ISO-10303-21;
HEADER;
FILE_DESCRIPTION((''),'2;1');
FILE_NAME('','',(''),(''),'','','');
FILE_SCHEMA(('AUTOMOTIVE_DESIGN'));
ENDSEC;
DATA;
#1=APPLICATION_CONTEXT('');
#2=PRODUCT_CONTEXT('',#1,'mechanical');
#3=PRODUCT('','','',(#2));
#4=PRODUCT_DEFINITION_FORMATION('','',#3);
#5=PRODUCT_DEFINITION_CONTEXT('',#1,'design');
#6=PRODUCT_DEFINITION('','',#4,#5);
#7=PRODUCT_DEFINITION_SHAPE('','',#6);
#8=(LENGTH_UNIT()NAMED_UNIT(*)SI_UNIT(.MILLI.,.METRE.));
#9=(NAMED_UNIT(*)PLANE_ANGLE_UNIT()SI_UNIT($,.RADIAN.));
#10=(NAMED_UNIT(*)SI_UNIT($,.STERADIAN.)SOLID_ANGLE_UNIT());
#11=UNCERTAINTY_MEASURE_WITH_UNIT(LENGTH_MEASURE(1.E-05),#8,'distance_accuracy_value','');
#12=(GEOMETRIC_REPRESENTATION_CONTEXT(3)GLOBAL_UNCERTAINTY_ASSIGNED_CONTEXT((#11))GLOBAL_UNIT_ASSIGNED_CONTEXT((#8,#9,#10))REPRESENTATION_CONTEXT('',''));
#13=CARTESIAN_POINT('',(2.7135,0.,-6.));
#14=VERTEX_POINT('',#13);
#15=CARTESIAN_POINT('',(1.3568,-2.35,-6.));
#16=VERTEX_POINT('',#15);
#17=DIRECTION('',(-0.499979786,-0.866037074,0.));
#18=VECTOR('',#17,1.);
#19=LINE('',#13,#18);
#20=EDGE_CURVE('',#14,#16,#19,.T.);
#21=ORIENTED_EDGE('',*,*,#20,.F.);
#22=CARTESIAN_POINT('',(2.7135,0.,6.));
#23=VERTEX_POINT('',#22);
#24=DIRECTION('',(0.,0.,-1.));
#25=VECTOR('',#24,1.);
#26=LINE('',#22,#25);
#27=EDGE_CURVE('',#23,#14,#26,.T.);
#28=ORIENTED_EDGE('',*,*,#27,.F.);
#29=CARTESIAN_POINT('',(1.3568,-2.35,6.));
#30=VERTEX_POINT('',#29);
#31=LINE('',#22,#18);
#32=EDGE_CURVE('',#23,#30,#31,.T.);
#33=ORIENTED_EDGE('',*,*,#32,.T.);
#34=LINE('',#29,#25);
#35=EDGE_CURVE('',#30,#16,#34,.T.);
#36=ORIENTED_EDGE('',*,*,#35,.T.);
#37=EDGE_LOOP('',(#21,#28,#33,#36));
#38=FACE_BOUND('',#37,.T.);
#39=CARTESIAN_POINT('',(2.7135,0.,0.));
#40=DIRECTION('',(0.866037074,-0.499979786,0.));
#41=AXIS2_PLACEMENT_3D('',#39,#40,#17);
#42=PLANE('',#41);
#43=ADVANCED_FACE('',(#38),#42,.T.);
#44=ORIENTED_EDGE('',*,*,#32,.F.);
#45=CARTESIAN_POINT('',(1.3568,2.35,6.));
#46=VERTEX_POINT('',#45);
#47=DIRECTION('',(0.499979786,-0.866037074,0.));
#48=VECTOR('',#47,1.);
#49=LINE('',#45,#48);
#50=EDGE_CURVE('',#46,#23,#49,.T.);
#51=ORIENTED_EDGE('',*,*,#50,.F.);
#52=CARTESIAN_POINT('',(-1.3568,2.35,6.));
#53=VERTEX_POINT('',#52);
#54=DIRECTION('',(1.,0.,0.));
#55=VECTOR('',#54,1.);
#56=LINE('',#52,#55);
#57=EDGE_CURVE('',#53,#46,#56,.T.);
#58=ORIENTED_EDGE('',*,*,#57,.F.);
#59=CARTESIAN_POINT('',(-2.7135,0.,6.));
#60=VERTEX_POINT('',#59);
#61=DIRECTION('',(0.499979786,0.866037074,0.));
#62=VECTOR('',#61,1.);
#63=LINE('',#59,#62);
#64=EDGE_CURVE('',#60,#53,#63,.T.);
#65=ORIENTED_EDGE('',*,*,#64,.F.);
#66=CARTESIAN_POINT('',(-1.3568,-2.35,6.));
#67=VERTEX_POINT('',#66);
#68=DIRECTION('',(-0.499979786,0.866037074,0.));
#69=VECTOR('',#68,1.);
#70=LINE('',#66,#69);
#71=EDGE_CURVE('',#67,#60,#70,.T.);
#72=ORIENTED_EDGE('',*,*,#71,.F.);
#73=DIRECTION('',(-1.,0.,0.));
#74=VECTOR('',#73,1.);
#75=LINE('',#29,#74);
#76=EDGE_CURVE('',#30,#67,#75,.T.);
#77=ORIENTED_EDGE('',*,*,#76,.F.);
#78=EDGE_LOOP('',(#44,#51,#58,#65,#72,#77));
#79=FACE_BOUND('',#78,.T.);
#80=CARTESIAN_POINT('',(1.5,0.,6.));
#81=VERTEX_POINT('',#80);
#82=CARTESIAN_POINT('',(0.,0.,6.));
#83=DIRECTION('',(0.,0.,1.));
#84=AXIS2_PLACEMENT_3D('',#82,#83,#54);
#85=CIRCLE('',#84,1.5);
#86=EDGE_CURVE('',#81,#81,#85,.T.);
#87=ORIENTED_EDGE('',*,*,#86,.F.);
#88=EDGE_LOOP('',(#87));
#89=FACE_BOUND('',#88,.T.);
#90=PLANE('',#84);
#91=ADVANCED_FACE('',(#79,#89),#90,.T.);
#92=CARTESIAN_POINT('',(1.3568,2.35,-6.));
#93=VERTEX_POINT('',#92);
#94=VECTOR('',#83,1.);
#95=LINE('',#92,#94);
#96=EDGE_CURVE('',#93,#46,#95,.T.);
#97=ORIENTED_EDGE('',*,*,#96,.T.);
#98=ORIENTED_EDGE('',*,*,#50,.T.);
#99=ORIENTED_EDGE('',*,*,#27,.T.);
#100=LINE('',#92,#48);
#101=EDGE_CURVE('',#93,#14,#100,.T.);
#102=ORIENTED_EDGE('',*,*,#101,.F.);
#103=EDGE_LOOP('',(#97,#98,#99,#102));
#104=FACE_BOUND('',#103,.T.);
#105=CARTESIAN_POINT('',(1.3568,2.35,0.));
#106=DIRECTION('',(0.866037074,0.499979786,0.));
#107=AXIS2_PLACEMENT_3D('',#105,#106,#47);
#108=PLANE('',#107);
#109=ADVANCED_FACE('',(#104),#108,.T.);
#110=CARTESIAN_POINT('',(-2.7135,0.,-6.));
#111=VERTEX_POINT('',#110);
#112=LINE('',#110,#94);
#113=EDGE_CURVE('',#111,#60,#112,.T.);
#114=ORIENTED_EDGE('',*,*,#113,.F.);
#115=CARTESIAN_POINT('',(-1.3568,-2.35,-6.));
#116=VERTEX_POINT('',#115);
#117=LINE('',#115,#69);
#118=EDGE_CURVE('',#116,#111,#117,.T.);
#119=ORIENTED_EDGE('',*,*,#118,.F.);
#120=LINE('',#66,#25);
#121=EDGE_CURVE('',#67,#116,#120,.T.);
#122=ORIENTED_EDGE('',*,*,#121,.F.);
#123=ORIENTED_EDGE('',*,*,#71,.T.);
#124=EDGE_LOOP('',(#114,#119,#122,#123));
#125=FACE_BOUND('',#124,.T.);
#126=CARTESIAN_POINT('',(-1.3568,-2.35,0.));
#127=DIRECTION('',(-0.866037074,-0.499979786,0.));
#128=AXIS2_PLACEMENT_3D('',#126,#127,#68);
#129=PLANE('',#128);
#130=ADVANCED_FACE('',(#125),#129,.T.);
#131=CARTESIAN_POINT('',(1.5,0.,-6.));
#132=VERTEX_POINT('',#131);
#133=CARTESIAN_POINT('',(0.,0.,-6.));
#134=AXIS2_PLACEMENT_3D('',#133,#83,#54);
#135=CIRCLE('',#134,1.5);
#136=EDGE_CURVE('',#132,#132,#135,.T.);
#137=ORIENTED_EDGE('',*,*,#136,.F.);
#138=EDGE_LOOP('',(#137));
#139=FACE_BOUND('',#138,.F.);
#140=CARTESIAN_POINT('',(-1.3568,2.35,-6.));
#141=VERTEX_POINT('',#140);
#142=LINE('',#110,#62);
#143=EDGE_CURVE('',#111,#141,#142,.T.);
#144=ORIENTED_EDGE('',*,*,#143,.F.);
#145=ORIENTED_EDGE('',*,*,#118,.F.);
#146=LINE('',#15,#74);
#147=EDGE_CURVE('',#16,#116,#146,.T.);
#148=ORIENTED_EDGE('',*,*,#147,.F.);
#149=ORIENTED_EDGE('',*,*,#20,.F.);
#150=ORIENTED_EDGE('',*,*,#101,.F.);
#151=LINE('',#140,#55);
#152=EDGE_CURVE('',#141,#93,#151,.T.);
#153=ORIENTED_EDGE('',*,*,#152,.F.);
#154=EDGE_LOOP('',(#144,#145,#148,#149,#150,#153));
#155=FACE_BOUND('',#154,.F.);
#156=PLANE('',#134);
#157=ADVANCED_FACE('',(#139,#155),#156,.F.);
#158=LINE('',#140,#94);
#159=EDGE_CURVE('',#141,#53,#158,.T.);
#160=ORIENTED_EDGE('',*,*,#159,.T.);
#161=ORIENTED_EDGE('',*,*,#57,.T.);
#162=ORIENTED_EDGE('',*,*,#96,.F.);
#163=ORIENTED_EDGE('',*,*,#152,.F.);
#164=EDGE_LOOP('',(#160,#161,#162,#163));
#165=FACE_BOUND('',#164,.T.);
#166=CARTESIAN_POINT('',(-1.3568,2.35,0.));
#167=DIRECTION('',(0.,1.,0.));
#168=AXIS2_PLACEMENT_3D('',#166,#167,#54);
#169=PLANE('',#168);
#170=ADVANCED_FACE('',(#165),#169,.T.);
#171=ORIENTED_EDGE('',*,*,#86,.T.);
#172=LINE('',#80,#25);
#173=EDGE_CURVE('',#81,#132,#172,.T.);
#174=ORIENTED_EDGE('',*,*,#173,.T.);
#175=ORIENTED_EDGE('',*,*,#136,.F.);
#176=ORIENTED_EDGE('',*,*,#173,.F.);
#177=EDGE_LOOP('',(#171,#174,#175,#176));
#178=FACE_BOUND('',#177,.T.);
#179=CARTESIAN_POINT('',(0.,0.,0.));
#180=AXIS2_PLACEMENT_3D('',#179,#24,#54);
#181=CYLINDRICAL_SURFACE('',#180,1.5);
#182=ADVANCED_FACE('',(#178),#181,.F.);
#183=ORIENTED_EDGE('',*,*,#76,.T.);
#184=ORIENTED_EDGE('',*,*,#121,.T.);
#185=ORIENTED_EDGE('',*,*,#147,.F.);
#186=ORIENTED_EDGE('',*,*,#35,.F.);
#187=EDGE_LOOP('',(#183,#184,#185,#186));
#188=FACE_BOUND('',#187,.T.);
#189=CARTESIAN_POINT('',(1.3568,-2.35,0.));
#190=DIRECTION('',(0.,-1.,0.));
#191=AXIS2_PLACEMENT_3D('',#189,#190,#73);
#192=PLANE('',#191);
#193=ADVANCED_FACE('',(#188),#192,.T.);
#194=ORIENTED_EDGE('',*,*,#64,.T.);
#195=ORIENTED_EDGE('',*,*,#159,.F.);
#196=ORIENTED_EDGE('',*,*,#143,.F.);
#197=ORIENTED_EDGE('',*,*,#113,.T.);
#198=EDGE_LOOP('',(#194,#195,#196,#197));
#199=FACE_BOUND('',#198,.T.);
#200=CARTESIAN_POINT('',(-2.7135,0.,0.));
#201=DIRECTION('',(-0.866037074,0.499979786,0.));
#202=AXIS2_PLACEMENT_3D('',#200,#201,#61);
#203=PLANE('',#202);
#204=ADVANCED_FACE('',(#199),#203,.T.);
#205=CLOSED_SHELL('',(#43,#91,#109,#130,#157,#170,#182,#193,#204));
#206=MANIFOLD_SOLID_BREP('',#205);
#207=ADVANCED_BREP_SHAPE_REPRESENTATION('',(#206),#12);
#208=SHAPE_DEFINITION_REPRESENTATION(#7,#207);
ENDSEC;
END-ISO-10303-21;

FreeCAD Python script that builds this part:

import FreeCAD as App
import Part
import Sketcher
from FreeCAD import Vector

doc = App.newDocument("Part")
params = doc.addObject("Spreadsheet::Sheet", "Params")
for row, (alias, value) in enumerate([
    ("sketch1_diameter", "3 mm"),
    ("pad1_length", "12 mm"),
], start=1):
    params.set(f"A{row}", alias)
    params.set(f"B{row}", "=" + value)
    params.setAlias(f"B{row}", alias)

body = doc.addObject("PartDesign::Body", "Body")

# Sketch on XY plane
sketch1 = doc.addObject("Sketcher::SketchObject", "Sketch")
body.addObject(sketch1)
sketch1.AttachmentSupport = (doc.XY_Plane, [""])
sketch1.MapMode = "FlatFace"
sketch1.addGeometry(Part.LineSegment(Vector(2.7, 0, 0), Vector(1.4, 2.4, 0)), False)
sketch1.addGeometry(Part.LineSegment(Vector(1.4, 2.4, 0), Vector(-1.4, 2.4, 0)), False)
sketch1.addGeometry(Part.LineSegment(Vector(-1.4, 2.4, 0), Vector(-2.7, 0, 0)), False)
sketch1.addGeometry(Part.LineSegment(Vector(-2.7, 0, 0), Vector(-1.4, -2.4, 0)), False)
sketch1.addGeometry(Part.LineSegment(Vector(-1.4, -2.4, 0), Vector(1.4, -2.4, 0)), False)
sketch1.addGeometry(Part.LineSegment(Vector(1.4, -2.4, 0), Vector(2.7, 0, 0)), False)
sketch1.addGeometry(Part.Circle(Vector(0, 0, 0), Vector(0, 0, 1), 1.5), False)
sketch1.addConstraint(Sketcher.Constraint("Coincident", 0, 2, 1, 1))
sketch1.addConstraint(Sketcher.Constraint("Coincident", 1, 2, 2, 1))
sketch1.addConstraint(Sketcher.Constraint("Coincident", 2, 2, 3, 1))
sketch1.addConstraint(Sketcher.Constraint("Coincident", 3, 2, 4, 1))
sketch1.addConstraint(Sketcher.Constraint("Coincident", 4, 2, 5, 1))
sketch1.addConstraint(Sketcher.Constraint("Coincident", 5, 2, 0, 1))
sketch1.addConstraint(Sketcher.Constraint("Horizontal", 1))
sketch1.addConstraint(Sketcher.Constraint("Horizontal", 4))
sketch1.addConstraint(Sketcher.Constraint("Coincident", 6, 3, -1, 1))
sketch1.addConstraint(Sketcher.Constraint("Symmetric", 0, 2, 3, 2, -1, 1))
sketch1.addConstraint(Sketcher.Constraint("Symmetric", 2, 2, 5, 2, -1, 1))
sketch1.addConstraint(Sketcher.Constraint("PointOnObject", 2, 2, -1))
sketch1.addConstraint(Sketcher.Constraint("Parallel", 2, 5))
sketch1.addConstraint(Sketcher.Constraint("Vertical", 1, 2, 3, 2))
sketch1.addConstraint(Sketcher.Constraint("Diameter", 6, 3.0))
sketch1.addConstraint(Sketcher.Constraint("DistanceY", 3, 2, 1, 2, 4.7))
sketch1.addConstraint(Sketcher.Constraint("DistanceX", 1, 2, 1, 1, 2.7136))
sketch1.addConstraint(Sketcher.Constraint("Distance", 0, 2.7135))
sketch1.setExpression("Constraints[14]", "Params.sketch1_diameter")
pad1 = doc.addObject("PartDesign::Pad", "Pad")
body.addObject(pad1)
pad1.Profile = sketch1
pad1.setExpression("Length", "Params.pad1_length")
pad1.Midplane = True

doc.recompute()
